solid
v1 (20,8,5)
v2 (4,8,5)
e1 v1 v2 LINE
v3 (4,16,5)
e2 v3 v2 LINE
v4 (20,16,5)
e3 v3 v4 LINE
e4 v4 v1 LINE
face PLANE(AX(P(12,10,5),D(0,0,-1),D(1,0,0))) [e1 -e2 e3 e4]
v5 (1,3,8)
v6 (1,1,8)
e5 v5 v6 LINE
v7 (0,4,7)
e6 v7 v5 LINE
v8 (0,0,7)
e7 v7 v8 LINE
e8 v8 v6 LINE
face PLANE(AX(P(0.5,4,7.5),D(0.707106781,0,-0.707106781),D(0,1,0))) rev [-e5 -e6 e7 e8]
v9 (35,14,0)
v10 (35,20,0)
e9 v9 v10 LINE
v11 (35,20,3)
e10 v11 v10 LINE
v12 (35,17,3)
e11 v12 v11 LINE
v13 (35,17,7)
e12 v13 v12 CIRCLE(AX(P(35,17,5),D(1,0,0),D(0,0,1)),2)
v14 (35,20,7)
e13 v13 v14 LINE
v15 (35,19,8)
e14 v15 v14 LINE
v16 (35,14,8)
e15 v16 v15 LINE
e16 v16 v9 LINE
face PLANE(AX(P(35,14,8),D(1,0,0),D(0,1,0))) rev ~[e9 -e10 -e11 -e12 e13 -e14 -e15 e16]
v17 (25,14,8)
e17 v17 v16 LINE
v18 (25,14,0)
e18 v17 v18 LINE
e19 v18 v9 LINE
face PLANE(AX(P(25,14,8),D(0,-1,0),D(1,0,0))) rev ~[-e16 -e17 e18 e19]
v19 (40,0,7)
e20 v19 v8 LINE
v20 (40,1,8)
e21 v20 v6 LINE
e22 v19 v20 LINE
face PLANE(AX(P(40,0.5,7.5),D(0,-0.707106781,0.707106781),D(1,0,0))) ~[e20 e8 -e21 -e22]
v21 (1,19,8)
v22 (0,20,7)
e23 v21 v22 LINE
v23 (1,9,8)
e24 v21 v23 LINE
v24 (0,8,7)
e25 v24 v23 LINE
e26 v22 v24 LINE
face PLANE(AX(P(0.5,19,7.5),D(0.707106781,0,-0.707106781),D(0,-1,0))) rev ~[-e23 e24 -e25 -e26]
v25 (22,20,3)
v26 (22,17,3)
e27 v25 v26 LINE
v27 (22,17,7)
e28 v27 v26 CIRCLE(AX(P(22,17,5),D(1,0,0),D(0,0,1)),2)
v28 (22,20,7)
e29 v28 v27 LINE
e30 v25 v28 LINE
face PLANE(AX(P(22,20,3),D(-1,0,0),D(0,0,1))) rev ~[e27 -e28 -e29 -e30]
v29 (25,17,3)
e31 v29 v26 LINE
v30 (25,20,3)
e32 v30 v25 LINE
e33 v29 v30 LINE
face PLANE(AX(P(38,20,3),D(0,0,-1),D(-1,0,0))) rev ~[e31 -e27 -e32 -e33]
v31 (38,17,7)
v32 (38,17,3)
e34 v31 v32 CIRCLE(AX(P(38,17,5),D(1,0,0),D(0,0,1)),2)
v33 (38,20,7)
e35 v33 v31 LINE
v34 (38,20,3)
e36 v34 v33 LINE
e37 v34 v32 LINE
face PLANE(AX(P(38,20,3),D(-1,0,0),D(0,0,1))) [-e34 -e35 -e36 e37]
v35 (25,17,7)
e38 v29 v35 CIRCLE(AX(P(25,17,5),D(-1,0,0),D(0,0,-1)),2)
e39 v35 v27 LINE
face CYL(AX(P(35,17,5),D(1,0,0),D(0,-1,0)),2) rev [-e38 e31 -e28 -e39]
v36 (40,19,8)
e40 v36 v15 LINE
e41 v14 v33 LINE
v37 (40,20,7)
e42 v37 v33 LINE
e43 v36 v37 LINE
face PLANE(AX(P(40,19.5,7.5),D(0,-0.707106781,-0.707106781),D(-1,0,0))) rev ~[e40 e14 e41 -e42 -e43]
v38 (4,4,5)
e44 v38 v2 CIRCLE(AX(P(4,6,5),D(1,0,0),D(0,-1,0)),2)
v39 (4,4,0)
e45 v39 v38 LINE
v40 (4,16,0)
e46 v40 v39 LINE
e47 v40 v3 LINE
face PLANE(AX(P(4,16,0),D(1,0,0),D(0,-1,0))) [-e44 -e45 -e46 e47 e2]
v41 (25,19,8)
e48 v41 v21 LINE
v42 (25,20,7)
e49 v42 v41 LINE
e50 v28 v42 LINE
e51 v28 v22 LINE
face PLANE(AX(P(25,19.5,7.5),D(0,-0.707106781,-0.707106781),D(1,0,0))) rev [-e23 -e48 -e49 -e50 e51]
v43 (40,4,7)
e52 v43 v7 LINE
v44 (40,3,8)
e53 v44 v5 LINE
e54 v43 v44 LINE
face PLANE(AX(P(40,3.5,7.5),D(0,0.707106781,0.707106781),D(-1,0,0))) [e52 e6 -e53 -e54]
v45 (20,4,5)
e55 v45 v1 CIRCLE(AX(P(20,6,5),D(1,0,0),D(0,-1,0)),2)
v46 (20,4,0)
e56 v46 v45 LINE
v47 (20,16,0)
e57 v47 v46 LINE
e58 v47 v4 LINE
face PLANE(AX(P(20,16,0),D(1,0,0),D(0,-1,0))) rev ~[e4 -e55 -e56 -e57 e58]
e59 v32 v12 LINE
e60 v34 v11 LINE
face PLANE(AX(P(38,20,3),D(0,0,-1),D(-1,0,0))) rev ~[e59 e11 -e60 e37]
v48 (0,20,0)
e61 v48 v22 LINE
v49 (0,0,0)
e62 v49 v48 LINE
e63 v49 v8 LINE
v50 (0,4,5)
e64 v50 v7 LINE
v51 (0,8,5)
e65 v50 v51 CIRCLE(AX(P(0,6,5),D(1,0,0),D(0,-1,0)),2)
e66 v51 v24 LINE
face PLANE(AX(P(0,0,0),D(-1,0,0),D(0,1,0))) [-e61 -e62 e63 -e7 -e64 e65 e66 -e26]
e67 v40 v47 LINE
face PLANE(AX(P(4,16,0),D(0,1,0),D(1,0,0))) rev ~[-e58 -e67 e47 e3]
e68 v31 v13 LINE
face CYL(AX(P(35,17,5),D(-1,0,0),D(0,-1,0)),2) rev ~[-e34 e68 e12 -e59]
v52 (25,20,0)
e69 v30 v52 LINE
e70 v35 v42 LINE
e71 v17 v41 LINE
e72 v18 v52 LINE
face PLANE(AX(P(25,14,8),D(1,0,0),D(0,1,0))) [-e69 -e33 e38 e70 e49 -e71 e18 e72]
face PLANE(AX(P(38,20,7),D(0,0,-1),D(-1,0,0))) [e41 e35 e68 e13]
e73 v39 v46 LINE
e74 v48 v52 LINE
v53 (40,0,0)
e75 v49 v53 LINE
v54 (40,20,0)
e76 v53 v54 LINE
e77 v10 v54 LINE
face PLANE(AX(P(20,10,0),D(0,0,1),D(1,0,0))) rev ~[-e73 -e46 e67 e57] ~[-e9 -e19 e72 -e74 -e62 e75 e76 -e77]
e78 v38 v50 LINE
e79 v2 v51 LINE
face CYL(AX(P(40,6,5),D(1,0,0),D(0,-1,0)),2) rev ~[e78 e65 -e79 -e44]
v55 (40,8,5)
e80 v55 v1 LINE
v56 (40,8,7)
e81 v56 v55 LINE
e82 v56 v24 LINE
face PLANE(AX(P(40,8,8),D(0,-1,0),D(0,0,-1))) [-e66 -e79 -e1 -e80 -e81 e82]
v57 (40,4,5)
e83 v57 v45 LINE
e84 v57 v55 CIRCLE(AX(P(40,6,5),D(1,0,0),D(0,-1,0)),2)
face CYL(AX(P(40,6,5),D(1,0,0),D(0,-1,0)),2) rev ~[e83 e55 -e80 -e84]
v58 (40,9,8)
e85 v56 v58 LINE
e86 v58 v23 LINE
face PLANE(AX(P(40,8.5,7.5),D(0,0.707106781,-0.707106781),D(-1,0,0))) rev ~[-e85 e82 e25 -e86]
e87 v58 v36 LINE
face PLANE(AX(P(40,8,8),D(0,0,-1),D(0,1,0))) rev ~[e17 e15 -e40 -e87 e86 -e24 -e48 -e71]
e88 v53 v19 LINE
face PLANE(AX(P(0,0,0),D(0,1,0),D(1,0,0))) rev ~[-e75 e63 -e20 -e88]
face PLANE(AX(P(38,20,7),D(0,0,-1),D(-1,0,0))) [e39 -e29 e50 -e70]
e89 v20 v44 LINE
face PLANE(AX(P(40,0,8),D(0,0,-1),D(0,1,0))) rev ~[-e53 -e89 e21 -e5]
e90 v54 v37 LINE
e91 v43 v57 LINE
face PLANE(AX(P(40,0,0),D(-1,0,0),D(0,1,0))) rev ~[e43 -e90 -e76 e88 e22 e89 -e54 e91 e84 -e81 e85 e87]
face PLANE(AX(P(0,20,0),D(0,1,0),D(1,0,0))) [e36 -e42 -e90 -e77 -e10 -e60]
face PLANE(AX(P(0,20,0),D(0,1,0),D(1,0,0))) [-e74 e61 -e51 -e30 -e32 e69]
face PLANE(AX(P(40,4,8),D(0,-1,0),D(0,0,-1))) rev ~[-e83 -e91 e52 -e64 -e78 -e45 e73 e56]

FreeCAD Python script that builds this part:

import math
import FreeCAD as App
import Part
import Sketcher
from FreeCAD import Vector


def edges_at(feature, points):
    """Names of the edges that pass closest to the given points."""
    edges = feature.Shape.Edges
    near = lambda p: min(range(len(edges)), key=lambda i: edges[i].distToShape(Part.Vertex(*p))[0])
    return sorted({f"Edge{near(p) + 1}" for p in points})


def add_polygon(sketch, points):
    """Adds a closed chain of lines whose ends are joined by coincident constraints."""
    first, n = sketch.GeometryCount, len(points)
    for a, b in zip(points, points[1:] + points[:1]):
        sketch.addGeometry(Part.LineSegment(App.Vector(*a, 0), App.Vector(*b, 0)), False)
    for i in range(n):
        sketch.addConstraint(Sketcher.Constraint("Coincident", first + i, 2, first + (i + 1) % n, 1))

doc = App.newDocument("Part")
params = doc.addObject("Spreadsheet::Sheet", "Params")
for row, (alias, value) in enumerate([
    ("sketch1_width", "40 mm"),
    ("sketch1_height", "20 mm"),
    ("pad1_length", "10 mm"),
    ("sketch2_radius", "2 mm"),
    ("sketch2_width", "4 mm"),
    ("sketch2_width2", "17 mm"),
    ("sketch2_height", "3 mm"),
    ("sketch2_height2", "2 mm"),
    ("sketch3_width", "10 mm"),
    ("sketch3_height", "6 mm"),
    ("sketch4_diameter", "4 mm"),
    ("pocket3_length", "3 mm"),
    ("pocket3_length2", "13 mm"),
    ("sketch5_width", "16 mm"),
    ("sketch5_height", "4 mm"),
    ("pocket4_length", "3 mm"),
    ("chamfer_size", "1 mm"),
    ("chamfer2_size", "1 mm"),
    ("chamfer3_size", "1 mm"),
    ("chamfer4_size", "1 mm"),
    ("chamfer5_size", "1 mm"),
    ("chamfer6_size", "1 mm"),
    ("chamfer7_size", "1 mm"),
    ("sketch6_width", "16 mm"),
    ("sketch6_height", "12 mm"),
    ("pocket5_length", "5 mm"),
], start=1):
    params.set(f"A{row}", alias)
    params.set(f"B{row}", "=" + value)
    params.setAlias(f"B{row}", alias)

body = doc.addObject("PartDesign::Body", "Body")

# Sketch on XY plane
sketch1 = body.newObject("Sketcher::SketchObject", "Sketch")
sketch1.AttachmentSupport = (doc.getObject("XY_Plane"), [""])
sketch1.MapMode = "FlatFace"
add_polygon(sketch1, [(0, 20), (0, 0), (40, 0), (40, 20)])  # lines 0-3
sketch1.addConstraint([
    Sketcher.Constraint("Vertical", 0),
    Sketcher.Constraint("Horizontal", 1),
    Sketcher.Constraint("Vertical", 2),
    Sketcher.Constraint("Horizontal", 3),
    Sketcher.Constraint("Coincident", 0, 2, -1, 1),
    Sketcher.Constraint("DistanceX", 1, 1, 1, 2, 40.0),
    Sketcher.Constraint("DistanceY", 0, 2, 0, 1, 20.0),
])
sketch1.setExpression("Constraints[9]", "Params.sketch1_width")
sketch1.setExpression("Constraints[10]", "Params.sketch1_height")
pad1 = body.newObject("PartDesign::Pad", "Pad")
pad1.Profile = sketch1
pad1.setExpression("Length", "Params.pad1_length")

# Sketch on YZ plane
sketch2 = body.newObject("Sketcher::SketchObject", "Sketch001")
sketch2.AttachmentSupport = (doc.getObject("YZ_Plane"), [""])
sketch2.MapMode = "FlatFace"
sketch2.AttachmentOffset = App.Placement(Vector(0, 0, 40), App.Rotation())
sketch2.addGeometry([
    Part.LineSegment(Vector(0, 8, 0), Vector(4, 8, 0)),  # 0
    Part.LineSegment(Vector(4, 8, 0), Vector(4, 5, 0)),  # 1
    Part.ArcOfCircle(Part.Circle(Vector(6, 5, 0), Vector(0, 0, 1), 2), math.radians(180), math.radians(360)),  # 2
    Part.LineSegment(Vector(8, 5, 0), Vector(8, 8, 0)),  # 3
    Part.LineSegment(Vector(8, 8, 0), Vector(25, 8, 0)),  # 4
    Part.LineSegment(Vector(25, 8, 0), Vector(25, 10, 0)),  # 5
    Part.LineSegment(Vector(25, 10, 0), Vector(0, 10, 0)),  # 6
    Part.LineSegment(Vector(0, 10, 0), Vector(0, 8, 0)),  # 7
], False)
sketch2.addConstraint([
    Sketcher.Constraint("Coincident", 0, 2, 1, 1),
    Sketcher.Constraint("Tangent", 1, 2, 2, 1),
    Sketcher.Constraint("Tangent", 2, 2, 3, 1),
    Sketcher.Constraint("Coincident", 3, 2, 4, 1),
    Sketcher.Constraint("Coincident", 4, 2, 5, 1),
    Sketcher.Constraint("Coincident", 5, 2, 6, 1),
    Sketcher.Constraint("Coincident", 6, 2, 7, 1),
    Sketcher.Constraint("Coincident", 7, 2, 0, 1),
    Sketcher.Constraint("Horizontal", 0),
    Sketcher.Constraint("Vertical", 1),
    Sketcher.Constraint("Vertical", 3),
    Sketcher.Constraint("Horizontal", 4),
    Sketcher.Constraint("Vertical", 5),
    Sketcher.Constraint("Horizontal", 6),
    Sketcher.Constraint("Vertical", 7),
    Sketcher.Constraint("PointOnObject", 6, 2, -2),
    Sketcher.Constraint("Horizontal", 0, 2, 3, 2),
    Sketcher.Constraint("Radius", 2, 2.0),
    Sketcher.Constraint("DistanceX", 0, 1, 0, 2, 4.0),
    Sketcher.Constraint("DistanceX", 4, 1, 4, 2, 17.0),
    Sketcher.Constraint("DistanceY", 1, 2, 1, 1, 3.0),
    Sketcher.Constraint("DistanceY", 5, 1, 5, 2, 2.0),
    Sketcher.Constraint("DistanceY", -1, 1, 2, 3, 5.0),
])
sketch2.setExpression("Constraints[17]", "Params.sketch2_radius")
sketch2.setExpression("Constraints[18]", "Params.sketch2_width")
sketch2.setExpression("Constraints[19]", "Params.sketch2_width2")
sketch2.setExpression("Constraints[20]", "Params.sketch2_height")
sketch2.setExpression("Constraints[21]", "Params.sketch2_height2")
pocket1 = body.newObject("PartDesign::Pocket", "Pocket")
pocket1.Profile = sketch2
pocket1.Type = "ThroughAll"

# Sketch on XY plane
sketch3 = body.newObject("Sketcher::SketchObject", "Sketch002")
sketch3.AttachmentSupport = (doc.getObject("XY_Plane"), [""])
sketch3.MapMode = "FlatFace"
sketch3.AttachmentOffset = App.Placement(Vector(0, 0, 8), App.Rotation())
add_polygon(sketch3, [(25, 20), (25, 14), (35, 14), (35, 20)])  # lines 0-3
sketch3.addConstraint([
    Sketcher.Constraint("Vertical", 0),
    Sketcher.Constraint("Horizontal", 1),
    Sketcher.Constraint("Vertical", 2),
    Sketcher.Constraint("Horizontal", 3),
    Sketcher.Constraint("DistanceX", 1, 1, 1, 2, 10.0),
    Sketcher.Constraint("DistanceY", 0, 2, 0, 1, 6.0),
    Sketcher.Constraint("DistanceX", -1, 1, 0, 2, 25.0),
    Sketcher.Constraint("DistanceY", -1, 1, 0, 2, 14.0),
])
sketch3.setExpression("Constraints[8]", "Params.sketch3_width")
sketch3.setExpression("Constraints[9]", "Params.sketch3_height")
pocket2 = body.newObject("PartDesign::Pocket", "Pocket001")
pocket2.Profile = sketch3
pocket2.Type = "ThroughAll"

# Sketch on YZ plane
sketch4 = body.newObject("Sketcher::SketchObject", "Sketch003")
sketch4.AttachmentSupport = (doc.getObject("YZ_Plane"), [""])
sketch4.MapMode = "FlatFace"
sketch4.AttachmentOffset = App.Placement(Vector(0, 0, 35), App.Rotation())
sketch4.addGeometry(Part.Circle(Vector(17, 5, 0), Vector(0, 0, 1), 2), False)
sketch4.addConstraint([
    Sketcher.Constraint("Diameter", 0, 4.0),
    Sketcher.Constraint("DistanceX", -1, 1, 0, 3, 17.0),
    Sketcher.Constraint("DistanceY", -1, 1, 0, 3, 5.0),
])
sketch4.setExpression("Constraints[0]", "Params.sketch4_diameter")
pocket3 = body.newObject("PartDesign::Pocket", "Pocket002")
pocket3.Profile = sketch4
pocket3.Type = "TwoLengths"
pocket3.setExpression("Length", "Params.pocket3_length")
pocket3.setExpression("Length2", "Params.pocket3_length2")
pocket3.Reversed = True

# Sketch on XZ plane
sketch5 = body.newObject("Sketcher::SketchObject", "Sketch004")
sketch5.AttachmentSupport = (doc.getObject("XZ_Plane"), [""])
sketch5.MapMode = "FlatFace"
sketch5.AttachmentOffset = App.Placement(Vector(0, 0, -20), App.Rotation())
add_polygon(sketch5, [(38, 7), (38, 3), (22, 3), (22, 7)])  # lines 0-3
sketch5.addConstraint([
    Sketcher.Constraint("Vertical", 0),
    Sketcher.Constraint("Horizontal", 1),
    Sketcher.Constraint("Vertical", 2),
    Sketcher.Constraint("Horizontal", 3),
    Sketcher.Constraint("DistanceX", 1, 2, 1, 1, 16.0),
    Sketcher.Constraint("DistanceY", 0, 2, 0, 1, 4.0),
    Sketcher.Constraint("DistanceX", -1, 1, 0, 2, 38.0),
    Sketcher.Constraint("DistanceY", -1, 1, 0, 2, 3.0),
])
sketch5.setExpression("Constraints[8]", "Params.sketch5_width")
sketch5.setExpression("Constraints[9]", "Params.sketch5_height")
pocket4 = body.newObject("PartDesign::Pocket", "Pocket003")
pocket4.Profile = sketch5
pocket4.setExpression("Length", "Params.pocket4_length")
pocket4.Reversed = True
doc.recompute()

chamfer = body.newObject("PartDesign::Chamfer", "Chamfer")
chamfer.Base = (pocket4, edges_at(pocket4, [(20, 0, 8)]))
chamfer.setExpression("Size", "Params.chamfer_size")
doc.recompute()

chamfer2 = body.newObject("PartDesign::Chamfer", "Chamfer001")
chamfer2.Base = (chamfer, edges_at(chamfer, [(12.5, 20, 8)]))
chamfer2.setExpression("Size", "Params.chamfer2_size")
doc.recompute()

chamfer3 = body.newObject("PartDesign::Chamfer", "Chamfer002")
chamfer3.Base = (chamfer2, edges_at(chamfer2, [(37.5, 20, 8)]))
chamfer3.setExpression("Size", "Params.chamfer3_size")
doc.recompute()

chamfer4 = body.newObject("PartDesign::Chamfer", "Chamfer003")
chamfer4.Base = (chamfer3, edges_at(chamfer3, [(0, 13.5, 8)]))
chamfer4.setExpression("Size", "Params.chamfer4_size")
doc.recompute()

chamfer5 = body.newObject("PartDesign::Chamfer", "Chamfer004")
chamfer5.Base = (chamfer4, edges_at(chamfer4, [(0, 2.5, 8)]))
chamfer5.setExpression("Size", "Params.chamfer5_size")
doc.recompute()

chamfer6 = body.newObject("PartDesign::Chamfer", "Chamfer005")
chamfer6.Base = (chamfer5, edges_at(chamfer5, [(20.5, 8, 8)]))
chamfer6.setExpression("Size", "Params.chamfer6_size")
doc.recompute()

chamfer7 = body.newObject("PartDesign::Chamfer", "Chamfer006")
chamfer7.Base = (chamfer6, edges_at(chamfer6, [(20.5, 4, 8)]))
chamfer7.setExpression("Size", "Params.chamfer7_size")

# Sketch on XY plane
sketch6 = body.newObject("Sketcher::SketchObject", "Sketch005")
sketch6.AttachmentSupport = (doc.getObject("XY_Plane"), [""])
sketch6.MapMode = "FlatFace"
add_polygon(sketch6, [(4, 4), (4, 16), (20, 16), (20, 4)])  # lines 0-3
sketch6.addConstraint([
    Sketcher.Constraint("Vertical", 0),
    Sketcher.Constraint("Horizontal", 1),
    Sketcher.Constraint("Vertical", 2),
    Sketcher.Constraint("Horizontal", 3),
    Sketcher.Constraint("DistanceX", 1, 1, 1, 2, 16.0),
    Sketcher.Constraint("DistanceY", 0, 1, 0, 2, 12.0),
    Sketcher.Constraint("DistanceX", -1, 1, 0, 2, 4.0),
    Sketcher.Constraint("DistanceY", -1, 1, 0, 2, 16.0),
])
sketch6.setExpression("Constraints[8]", "Params.sketch6_width")
sketch6.setExpression("Constraints[9]", "Params.sketch6_height")
pocket5 = body.newObject("PartDesign::Pocket", "Pocket004")
pocket5.Profile = sketch6
pocket5.setExpression("Length", "Params.pocket5_length")
pocket5.Reversed = True

doc.recompute()
